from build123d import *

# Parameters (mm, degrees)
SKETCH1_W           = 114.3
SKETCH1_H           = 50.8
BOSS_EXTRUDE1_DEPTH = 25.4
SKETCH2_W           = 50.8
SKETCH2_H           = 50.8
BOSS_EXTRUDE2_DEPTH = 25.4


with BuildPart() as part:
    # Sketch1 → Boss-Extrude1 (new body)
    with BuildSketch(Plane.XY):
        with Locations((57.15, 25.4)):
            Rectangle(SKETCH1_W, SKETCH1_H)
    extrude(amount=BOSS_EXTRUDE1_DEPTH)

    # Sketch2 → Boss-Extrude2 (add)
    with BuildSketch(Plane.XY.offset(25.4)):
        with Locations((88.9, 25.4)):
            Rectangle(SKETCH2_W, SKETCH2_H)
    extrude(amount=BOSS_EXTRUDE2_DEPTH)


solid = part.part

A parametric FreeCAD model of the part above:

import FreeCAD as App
import Part
import Sketcher
from FreeCAD import Vector
Q = App.Units.Quantity


def add_polygon(sketch, points):
    """Adds a closed chain of lines whose ends are joined by coincident constraints."""
    first, n = sketch.GeometryCount, len(points)
    for a, b in zip(points, points[1:] + points[:1]):
        sketch.addGeometry(Part.LineSegment(App.Vector(*a, 0), App.Vector(*b, 0)), False)
    for i in range(n):
        sketch.addConstraint(Sketcher.Constraint("Coincident", first + i, 2, first + (i + 1) % n, 1))

doc = App.newDocument("Part")
body = doc.addObject("PartDesign::Body", "Body")

# Sketch on XY plane
sketch1 = body.newObject("Sketcher::SketchObject", "Sketch")
sketch1.AttachmentSupport = (doc.getObject("XY_Plane"), [""])
sketch1.MapMode = "FlatFace"
add_polygon(sketch1, [(0, 51), (0, 0), (114, 0), (114, 51)])  # lines 0-3
sketch1.addConstraint([
    Sketcher.Constraint("Vertical", 0),
    Sketcher.Constraint("Horizontal", 1),
    Sketcher.Constraint("Vertical", 2),
    Sketcher.Constraint("Horizontal", 3),
    Sketcher.Constraint("Coincident", 0, 2, -1, 1),
    Sketcher.Constraint("DistanceY", 0, 2, 0, 1, Q("2 in")),
    Sketcher.Constraint("DistanceX", 1, 1, 1, 2, Q("4.5 in")),
])
pad1 = body.newObject("PartDesign::Pad", "Pad")
pad1.Profile = sketch1
pad1.Length = Q("1 in")

# Sketch on XY plane
sketch2 = body.newObject("Sketcher::SketchObject", "Sketch001")
sketch2.AttachmentSupport = (doc.getObject("XY_Plane"), [""])
sketch2.MapMode = "FlatFace"
sketch2.AttachmentOffset = App.Placement(Vector(0, 0, 1 * 25.4), App.Rotation())
add_polygon(sketch2, [(64, 51), (64, 0), (114, 0), (114, 51)])  # lines 0-3
sketch2.addConstraint([
    Sketcher.Constraint("Vertical", 0),
    Sketcher.Constraint("Horizontal", 1),
    Sketcher.Constraint("Vertical", 2),
    Sketcher.Constraint("Horizontal", 3),
    Sketcher.Constraint("PointOnObject", 0, 2, -1),
    Sketcher.Constraint("Equal", 3, 0),
    Sketcher.Constraint("DistanceX", 1, 1, 1, 2, Q("2 in")),
    Sketcher.Constraint("DistanceX", -1, 1, 0, 2, Q("2.5 in")),
])
pad2 = body.newObject("PartDesign::Pad", "Pad001")
pad2.Profile = sketch2
pad2.Length = Q("1 in")

doc.recompute()
